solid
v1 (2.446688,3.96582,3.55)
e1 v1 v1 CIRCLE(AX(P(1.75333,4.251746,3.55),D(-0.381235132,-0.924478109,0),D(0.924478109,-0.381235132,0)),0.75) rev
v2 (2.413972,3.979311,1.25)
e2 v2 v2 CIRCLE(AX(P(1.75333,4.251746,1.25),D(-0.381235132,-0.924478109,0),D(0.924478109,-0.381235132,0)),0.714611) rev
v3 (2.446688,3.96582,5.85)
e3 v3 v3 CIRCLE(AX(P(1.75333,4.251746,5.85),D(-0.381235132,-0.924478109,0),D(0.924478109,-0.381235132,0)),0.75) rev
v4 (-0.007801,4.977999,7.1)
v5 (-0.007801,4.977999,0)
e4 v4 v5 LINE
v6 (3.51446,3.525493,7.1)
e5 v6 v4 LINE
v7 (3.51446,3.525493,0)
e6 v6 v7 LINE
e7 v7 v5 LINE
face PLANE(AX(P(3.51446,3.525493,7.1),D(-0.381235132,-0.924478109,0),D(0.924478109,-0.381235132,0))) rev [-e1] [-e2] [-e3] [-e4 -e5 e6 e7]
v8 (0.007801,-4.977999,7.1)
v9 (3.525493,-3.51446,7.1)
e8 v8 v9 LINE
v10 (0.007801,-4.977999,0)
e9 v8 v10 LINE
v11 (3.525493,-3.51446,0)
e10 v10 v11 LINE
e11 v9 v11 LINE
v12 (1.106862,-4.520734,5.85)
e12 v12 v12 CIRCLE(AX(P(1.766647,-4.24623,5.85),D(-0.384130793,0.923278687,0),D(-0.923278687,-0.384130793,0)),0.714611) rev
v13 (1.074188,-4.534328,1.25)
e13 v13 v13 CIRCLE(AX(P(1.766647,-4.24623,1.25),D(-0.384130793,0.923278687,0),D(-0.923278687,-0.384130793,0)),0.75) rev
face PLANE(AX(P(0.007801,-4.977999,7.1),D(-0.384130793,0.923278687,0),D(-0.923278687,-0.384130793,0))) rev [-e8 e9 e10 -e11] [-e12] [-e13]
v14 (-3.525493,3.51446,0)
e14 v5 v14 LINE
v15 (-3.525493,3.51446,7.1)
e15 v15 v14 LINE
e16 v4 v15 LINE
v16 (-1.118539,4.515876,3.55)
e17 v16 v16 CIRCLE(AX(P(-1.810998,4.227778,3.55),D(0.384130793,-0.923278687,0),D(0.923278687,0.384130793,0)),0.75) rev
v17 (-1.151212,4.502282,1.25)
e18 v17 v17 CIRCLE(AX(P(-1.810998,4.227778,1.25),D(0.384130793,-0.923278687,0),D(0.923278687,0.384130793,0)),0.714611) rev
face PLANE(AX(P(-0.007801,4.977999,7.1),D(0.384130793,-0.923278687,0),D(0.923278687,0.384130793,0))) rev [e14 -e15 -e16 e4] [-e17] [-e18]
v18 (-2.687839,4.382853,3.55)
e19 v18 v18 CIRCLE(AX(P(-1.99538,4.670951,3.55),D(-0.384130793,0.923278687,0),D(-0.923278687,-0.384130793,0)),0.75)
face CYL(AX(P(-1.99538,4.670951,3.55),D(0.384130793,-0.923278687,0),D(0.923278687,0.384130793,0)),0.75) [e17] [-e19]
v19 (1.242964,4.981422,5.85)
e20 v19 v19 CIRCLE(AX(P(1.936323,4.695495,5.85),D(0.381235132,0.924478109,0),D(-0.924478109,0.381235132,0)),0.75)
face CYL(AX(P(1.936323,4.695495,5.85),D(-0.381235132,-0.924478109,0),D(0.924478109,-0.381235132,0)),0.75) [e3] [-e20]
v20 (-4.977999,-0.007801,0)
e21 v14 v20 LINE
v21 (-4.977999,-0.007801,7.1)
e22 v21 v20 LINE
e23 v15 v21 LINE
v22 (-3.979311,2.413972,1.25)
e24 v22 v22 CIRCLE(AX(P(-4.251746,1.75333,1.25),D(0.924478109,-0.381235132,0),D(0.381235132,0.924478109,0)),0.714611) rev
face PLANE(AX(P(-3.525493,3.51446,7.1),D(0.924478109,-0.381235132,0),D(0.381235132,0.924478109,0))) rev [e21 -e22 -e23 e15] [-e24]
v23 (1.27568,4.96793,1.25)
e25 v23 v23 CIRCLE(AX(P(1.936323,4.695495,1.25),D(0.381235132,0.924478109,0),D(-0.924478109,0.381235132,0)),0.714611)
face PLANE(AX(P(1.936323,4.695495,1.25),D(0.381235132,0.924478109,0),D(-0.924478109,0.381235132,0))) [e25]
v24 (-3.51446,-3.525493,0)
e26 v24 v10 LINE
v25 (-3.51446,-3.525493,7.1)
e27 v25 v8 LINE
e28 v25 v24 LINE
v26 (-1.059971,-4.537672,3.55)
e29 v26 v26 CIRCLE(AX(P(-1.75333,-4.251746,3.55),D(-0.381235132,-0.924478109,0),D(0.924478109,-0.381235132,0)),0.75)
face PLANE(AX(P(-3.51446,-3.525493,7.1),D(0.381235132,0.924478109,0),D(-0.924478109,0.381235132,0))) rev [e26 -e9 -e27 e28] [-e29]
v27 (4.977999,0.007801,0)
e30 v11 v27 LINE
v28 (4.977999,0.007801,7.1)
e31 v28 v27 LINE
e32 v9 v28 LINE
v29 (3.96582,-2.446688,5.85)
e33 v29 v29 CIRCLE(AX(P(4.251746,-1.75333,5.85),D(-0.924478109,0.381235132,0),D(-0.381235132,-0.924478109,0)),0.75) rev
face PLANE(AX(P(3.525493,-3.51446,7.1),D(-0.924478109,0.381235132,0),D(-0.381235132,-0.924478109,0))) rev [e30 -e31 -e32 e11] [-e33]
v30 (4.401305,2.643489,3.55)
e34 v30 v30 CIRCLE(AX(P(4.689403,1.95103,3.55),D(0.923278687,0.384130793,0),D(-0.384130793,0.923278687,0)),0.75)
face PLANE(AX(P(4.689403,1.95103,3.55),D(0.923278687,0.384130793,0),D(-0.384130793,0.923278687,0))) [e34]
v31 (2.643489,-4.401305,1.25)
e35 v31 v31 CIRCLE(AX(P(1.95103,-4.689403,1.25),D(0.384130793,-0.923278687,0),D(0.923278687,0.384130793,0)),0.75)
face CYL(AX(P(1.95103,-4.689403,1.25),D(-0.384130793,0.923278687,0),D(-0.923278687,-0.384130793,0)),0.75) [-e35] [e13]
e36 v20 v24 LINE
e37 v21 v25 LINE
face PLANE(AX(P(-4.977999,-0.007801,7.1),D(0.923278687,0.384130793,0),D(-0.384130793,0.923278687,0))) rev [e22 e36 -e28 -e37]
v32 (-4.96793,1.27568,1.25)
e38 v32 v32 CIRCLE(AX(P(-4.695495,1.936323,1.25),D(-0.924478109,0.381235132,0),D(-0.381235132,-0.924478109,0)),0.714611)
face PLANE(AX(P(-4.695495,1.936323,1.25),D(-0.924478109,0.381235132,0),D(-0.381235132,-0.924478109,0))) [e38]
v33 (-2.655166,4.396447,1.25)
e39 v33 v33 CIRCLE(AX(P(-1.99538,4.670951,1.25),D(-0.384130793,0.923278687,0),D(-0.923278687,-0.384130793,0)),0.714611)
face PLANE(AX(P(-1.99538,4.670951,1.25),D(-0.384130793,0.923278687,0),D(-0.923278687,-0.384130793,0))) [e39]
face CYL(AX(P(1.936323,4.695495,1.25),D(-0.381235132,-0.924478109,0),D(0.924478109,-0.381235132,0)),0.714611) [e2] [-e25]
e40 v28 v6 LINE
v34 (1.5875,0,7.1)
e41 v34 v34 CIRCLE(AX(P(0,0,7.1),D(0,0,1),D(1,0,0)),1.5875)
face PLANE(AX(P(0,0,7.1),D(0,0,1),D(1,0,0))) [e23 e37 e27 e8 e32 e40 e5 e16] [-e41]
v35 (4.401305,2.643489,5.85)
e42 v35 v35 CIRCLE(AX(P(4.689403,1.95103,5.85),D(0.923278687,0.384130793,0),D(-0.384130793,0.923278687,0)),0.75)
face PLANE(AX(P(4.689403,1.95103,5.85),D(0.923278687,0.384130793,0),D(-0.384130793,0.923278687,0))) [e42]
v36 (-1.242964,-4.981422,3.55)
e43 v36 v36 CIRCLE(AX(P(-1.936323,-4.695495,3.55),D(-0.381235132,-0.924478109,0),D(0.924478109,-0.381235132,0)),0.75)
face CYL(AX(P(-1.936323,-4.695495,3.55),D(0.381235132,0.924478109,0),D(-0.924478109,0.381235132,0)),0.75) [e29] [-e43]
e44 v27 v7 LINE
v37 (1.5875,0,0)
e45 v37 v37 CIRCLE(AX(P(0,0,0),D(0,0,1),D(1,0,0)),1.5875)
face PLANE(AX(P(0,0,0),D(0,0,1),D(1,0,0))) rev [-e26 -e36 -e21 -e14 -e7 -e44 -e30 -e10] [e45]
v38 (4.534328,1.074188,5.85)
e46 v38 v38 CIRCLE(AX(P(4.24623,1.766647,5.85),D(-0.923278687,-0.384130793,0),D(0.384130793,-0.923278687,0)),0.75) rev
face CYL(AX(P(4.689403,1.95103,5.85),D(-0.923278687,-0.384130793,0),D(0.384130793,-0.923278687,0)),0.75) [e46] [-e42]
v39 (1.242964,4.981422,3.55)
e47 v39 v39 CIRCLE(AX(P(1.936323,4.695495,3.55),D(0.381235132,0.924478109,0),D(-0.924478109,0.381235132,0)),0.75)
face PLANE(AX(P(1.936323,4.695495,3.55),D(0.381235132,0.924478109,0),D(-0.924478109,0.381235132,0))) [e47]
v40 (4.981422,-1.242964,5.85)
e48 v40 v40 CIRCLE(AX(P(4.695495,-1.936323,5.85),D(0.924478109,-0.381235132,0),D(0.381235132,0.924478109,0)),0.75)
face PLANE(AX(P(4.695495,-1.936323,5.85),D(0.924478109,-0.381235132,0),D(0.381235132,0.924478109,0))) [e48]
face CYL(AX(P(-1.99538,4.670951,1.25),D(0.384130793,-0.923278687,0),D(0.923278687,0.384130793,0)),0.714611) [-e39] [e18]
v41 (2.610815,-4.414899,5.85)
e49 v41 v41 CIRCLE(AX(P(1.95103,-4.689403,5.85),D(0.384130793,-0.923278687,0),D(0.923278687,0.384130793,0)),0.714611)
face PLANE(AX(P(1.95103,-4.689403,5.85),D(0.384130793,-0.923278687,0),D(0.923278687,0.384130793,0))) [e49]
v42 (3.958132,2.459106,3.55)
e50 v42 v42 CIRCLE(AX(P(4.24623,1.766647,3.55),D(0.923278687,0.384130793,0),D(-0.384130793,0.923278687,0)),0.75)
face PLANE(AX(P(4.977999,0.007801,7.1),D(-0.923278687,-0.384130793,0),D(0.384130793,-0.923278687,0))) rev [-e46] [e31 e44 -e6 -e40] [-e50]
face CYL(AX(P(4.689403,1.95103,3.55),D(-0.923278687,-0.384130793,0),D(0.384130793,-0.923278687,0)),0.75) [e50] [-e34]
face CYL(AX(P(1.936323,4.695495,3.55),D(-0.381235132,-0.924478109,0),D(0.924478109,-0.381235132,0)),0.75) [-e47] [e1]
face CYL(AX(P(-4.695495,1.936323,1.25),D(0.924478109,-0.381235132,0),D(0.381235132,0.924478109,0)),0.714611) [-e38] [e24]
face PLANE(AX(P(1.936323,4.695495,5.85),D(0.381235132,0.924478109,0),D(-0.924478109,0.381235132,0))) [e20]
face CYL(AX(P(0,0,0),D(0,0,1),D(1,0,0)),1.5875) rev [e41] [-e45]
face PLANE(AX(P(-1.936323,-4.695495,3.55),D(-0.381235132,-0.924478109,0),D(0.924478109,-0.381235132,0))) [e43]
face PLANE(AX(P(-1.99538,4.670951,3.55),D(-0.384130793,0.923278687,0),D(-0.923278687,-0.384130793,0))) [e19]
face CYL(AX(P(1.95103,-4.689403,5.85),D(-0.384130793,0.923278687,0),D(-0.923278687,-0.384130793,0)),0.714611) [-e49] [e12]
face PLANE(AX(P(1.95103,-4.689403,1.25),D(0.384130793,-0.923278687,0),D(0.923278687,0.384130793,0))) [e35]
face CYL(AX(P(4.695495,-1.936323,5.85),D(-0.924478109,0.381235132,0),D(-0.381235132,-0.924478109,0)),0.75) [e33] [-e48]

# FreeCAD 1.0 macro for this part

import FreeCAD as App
import Part
import Sketcher
Q = App.Units.Quantity


def add_polygon(sketch, points):
    """Adds a closed chain of lines whose ends are joined by coincident constraints."""
    first, n = sketch.GeometryCount, len(points)
    for a, b in zip(points, points[1:] + points[:1]):
        sketch.addGeometry(Part.LineSegment(App.Vector(*a, 0), App.Vector(*b, 0)), False)
    for i in range(n):
        sketch.addConstraint(Sketcher.Constraint("Coincident", first + i, 2, first + (i + 1) % n, 1))

doc = App.newDocument("Part")
params = doc.addObject("Spreadsheet::Sheet", "Params")
for row, (alias, value) in enumerate([
    ("sketch1_length", "3.81 mm"),
    ("pad1_length", "7.1 mm"),
    ("sketch2_diameter", "1.5 mm"),
    ("pad2_length", "0.48 mm"),
    ("sketch3_diameter", "1.5 mm"),
    ("pad3_length", "0.48 mm"),
    ("sketch4_diameter", "1.5 mm"),
    ("pad4_length", "0.48 mm"),
    ("sketch5_diameter", "1.5 mm"),
    ("pad5_length", "0.48 mm"),
    ("sketch6_diameter", "1.5 mm"),
    ("pad6_length", "0.48 mm"),
    ("pad7_length", "0.48 mm"),
    ("sketch8_diameter", "1.5 mm"),
    ("pad8_length", "0.48 mm"),
], start=1):
    params.set(f"A{row}", alias)
    params.set(f"B{row}", "=" + value)
    params.setAlias(f"B{row}", alias)

body = doc.addObject("PartDesign::Body", "Body")

# Sketch on XY plane
sketch1 = body.newObject("Sketcher::SketchObject", "Sketch")
sketch1.AttachmentSupport = (doc.getObject("XY_Plane"), [""])
sketch1.MapMode = "FlatFace"
add_polygon(sketch1, [(0, 5), (-3.5, 3.5), (-5, 0), (-3.5, -3.5), (0, -5), (3.5, -3.5), (5, 0), (3.5, 3.5)])  # lines 0-7
sketch1.addConstraint(Sketcher.Constraint("Symmetric", 0, 2, 4, 2, -1, 1))
sketch1.addConstraint(Sketcher.Constraint("Symmetric", 1, 2, 5, 2, -1, 1))
sketch1.addConstraint(Sketcher.Constraint("Symmetric", 2, 2, 6, 2, -1, 1))
sketch1.addConstraint(Sketcher.Constraint("Symmetric", 3, 2, 7, 2, -1, 1))
sketch1.addConstraint(Sketcher.Constraint("Perpendicular", 0, 2))
sketch1.addConstraint(Sketcher.Constraint("Perpendicular", 1, 3))
sketch1.addConstraint(Sketcher.Constraint("Equal", 0, 1))
sketch1.addConstraint(Sketcher.Constraint("Equal", 1, 2))
sketch1.addConstraint(Sketcher.Constraint("Equal", 2, 3))
sketch1.addConstraint(Sketcher.Constraint("Distance", 0, Q("3.81 mm")))
sketch1.addConstraint(Sketcher.Constraint("DistanceX", 1, 2, -1, 1, Q("4.977999 mm")))
sketch1.addConstraint(Sketcher.Constraint("DistanceY", 1, 2, -1, 1, Q("0.007801 mm")))
sketch1.setExpression("Constraints[17]", "Params.sketch1_length")
pad1 = body.newObject("PartDesign::Pad", "Pad")
pad1.Profile = sketch1
pad1.setExpression("Length", "Params.pad1_length")

# Sketch on an angled plane
sketch2 = body.newObject("Sketcher::SketchObject", "Sketch001")
sketch2.Placement = App.Placement(App.Vector(1.75333, 4.251746, 0), App.Rotation(App.Vector(0.924478109, -0.381235132, 0), App.Vector(0, 0, -1), App.Vector(0.381235132, 0.924478109, 0), "ZXY"))
sketch2.addGeometry(Part.Circle(App.Vector(0, -1.2, 0), App.Vector(0, 0, 1), 0.7), False)
sketch2.addGeometry(Part.Circle(App.Vector(0, -3.5, 0), App.Vector(0, 0, 1), 0.8), False)
sketch2.addGeometry(Part.Circle(App.Vector(0, -5.8, 0), App.Vector(0, 0, 1), 0.8), False)
sketch2.addConstraint(Sketcher.Constraint("Equal", 1, 2))
sketch2.addConstraint(Sketcher.Constraint("PointOnObject", 0, 3, -2))
sketch2.addConstraint(Sketcher.Constraint("PointOnObject", 1, 3, -2))
sketch2.addConstraint(Sketcher.Constraint("PointOnObject", 2, 3, -2))
sketch2.addConstraint(Sketcher.Constraint("Diameter", 1, Q("1.5 mm")))
sketch2.addConstraint(Sketcher.Constraint("DistanceY", 1, 3, 0, 3, Q("2.3 mm")))
sketch2.addConstraint(Sketcher.Constraint("DistanceY", 2, 3, 1, 3, Q("2.3 mm")))
sketch2.addConstraint(Sketcher.Constraint("DistanceY", 0, 3, -1, 1, Q("1.25 mm")))
sketch2.addConstraint(Sketcher.Constraint("Diameter", 0, Q("1.429223 mm")))
sketch2.setExpression("Constraints[4]", "Params.sketch2_diameter")
pad2 = body.newObject("PartDesign::Pad", "Pad001")
pad2.Profile = sketch2
pad2.setExpression("Length", "Params.pad2_length")

# Sketch on an angled plane
sketch3 = body.newObject("Sketcher::SketchObject", "Sketch002")
sketch3.Placement = App.Placement(App.Vector(4.24623, 1.766647, 0), App.Rotation(App.Vector(0, 0, -1), App.Vector(-0.384130793, 0.923278687, 0), App.Vector(0.923278687, 0.384130793, 0), "ZXY"))
sketch3.addGeometry(Part.Circle(App.Vector(-3.5, 0, 0), App.Vector(0, 0, 1), 0.8), False)
sketch3.addGeometry(Part.Circle(App.Vector(-5.8, 0, 0), App.Vector(0, 0, 1), 0.8), False)
sketch3.addConstraint(Sketcher.Constraint("Equal", 0, 1))
sketch3.addConstraint(Sketcher.Constraint("PointOnObject", 0, 3, -1))
sketch3.addConstraint(Sketcher.Constraint("PointOnObject", 1, 3, -1))
sketch3.addConstraint(Sketcher.Constraint("Diameter", 0, Q("1.5 mm")))
sketch3.addConstraint(Sketcher.Constraint("DistanceX", 1, 3, 0, 3, Q("2.3 mm")))
sketch3.addConstraint(Sketcher.Constraint("DistanceX", 0, 3, -1, 1, Q("3.55 mm")))
sketch3.setExpression("Constraints[3]", "Params.sketch3_diameter")
pad3 = body.newObject("PartDesign::Pad", "Pad002")
pad3.Profile = sketch3
pad3.setExpression("Length", "Params.pad3_length")

# Sketch on an angled plane
sketch4 = body.newObject("Sketcher::SketchObject", "Sketch003")
sketch4.Placement = App.Placement(App.Vector(4.251746, -1.75333, 0), App.Rotation(App.Vector(0, 0, -1), App.Vector(0.381235132, 0.924478109, 0), App.Vector(0.924478109, -0.381235132, 0), "ZXY"))
sketch4.addGeometry(Part.Circle(App.Vector(-5.8, 0, 0), App.Vector(0, 0, 1), 0.8), False)
sketch4.addConstraint(Sketcher.Constraint("PointOnObject", 0, 3, -1))
sketch4.addConstraint(Sketcher.Constraint("Diameter", 0, Q("1.5 mm")))
sketch4.addConstraint(Sketcher.Constraint("DistanceX", 0, 3, -1, 1, Q("5.85 mm")))
sketch4.setExpression("Constraints[1]", "Params.sketch4_diameter")
pad4 = body.newObject("PartDesign::Pad", "Pad003")
pad4.Profile = sketch4
pad4.setExpression("Length", "Params.pad4_length")

# Sketch on an angled plane
sketch5 = body.newObject("Sketcher::SketchObject", "Sketch004")
sketch5.Placement = App.Placement(App.Vector(1.766647, -4.24623, 0), App.Rotation(App.Vector(0.923278687, 0.384130793, 0), App.Vector(0, 0, 1), App.Vector(0.384130793, -0.923278687, 0), "ZXY"))
sketch5.addGeometry(Part.Circle(App.Vector(0, 5.8, 0), App.Vector(0, 0, 1), 0.7), False)
sketch5.addGeometry(Part.Circle(App.Vector(0, 1.2, 0), App.Vector(0, 0, 1), 0.8), False)
sketch5.addConstraint(Sketcher.Constraint("PointOnObject", 0, 3, -2))
sketch5.addConstraint(Sketcher.Constraint("PointOnObject", 1, 3, -2))
sketch5.addConstraint(Sketcher.Constraint("Diameter", 1, Q("1.5 mm")))
sketch5.addConstraint(Sketcher.Constraint("DistanceY", 1, 3, 0, 3, Q("4.6 mm")))
sketch5.addConstraint(Sketcher.Constraint("DistanceY", -1, 1, 0, 3, Q("5.85 mm")))
sketch5.addConstraint(Sketcher.Constraint("Diameter", 0, Q("1.429223 mm")))
sketch5.setExpression("Constraints[2]", "Params.sketch5_diameter")
pad5 = body.newObject("PartDesign::Pad", "Pad004")
pad5.Profile = sketch5
pad5.setExpression("Length", "Params.pad5_length")

# Sketch on an angled plane
sketch6 = body.newObject("Sketcher::SketchObject", "Sketch005")
sketch6.Placement = App.Placement(App.Vector(-1.766647, 4.24623, 0), App.Rotation(App.Vector(0.923278687, 0.384130793, 0), App.Vector(0, 0, -1), App.Vector(-0.384130793, 0.923278687, 0), "ZXY"))
sketch6.addGeometry(Part.Circle(App.Vector(0, -1.2, 0), App.Vector(0, 0, 1), 0.7), False)
sketch6.addGeometry(Part.Circle(App.Vector(0, -3.5, 0), App.Vector(0, 0, 1), 0.8), False)
sketch6.addConstraint(Sketcher.Constraint("Vertical", 0, 3, 1, 3))
sketch6.addConstraint(Sketcher.Constraint("Diameter", 1, Q("1.5 mm")))
sketch6.addConstraint(Sketcher.Constraint("DistanceY", 1, 3, 0, 3, Q("2.3 mm")))
sketch6.addConstraint(Sketcher.Constraint("DistanceY", 0, 3, -1, 1, Q("1.25 mm")))
sketch6.addConstraint(Sketcher.Constraint("Diameter", 0, Q("1.429223 mm")))
sketch6.addConstraint(Sketcher.Constraint("DistanceX", 0, 3, -1, 1, Q("0.048036 mm")))
sketch6.setExpression("Constraints[1]", "Params.sketch6_diameter")
pad6 = body.newObject("PartDesign::Pad", "Pad005")
pad6.Profile = sketch6
pad6.setExpression("Length", "Params.pad6_length")

# Sketch on an angled plane
sketch7 = body.newObject("Sketcher::SketchObject", "Sketch006")
sketch7.Placement = App.Placement(App.Vector(-4.251746, 1.75333, 0), App.Rotation(App.Vector(0, 0, 1), App.Vector(0.381235132, 0.924478109, 0), App.Vector(-0.924478109, 0.381235132, 0), "ZXY"))
sketch7.addGeometry(Part.Circle(App.Vector(1.2, 0, 0), App.Vector(0, 0, 1), 0.7), False)
sketch7.addConstraint(Sketcher.Constraint("PointOnObject", 0, 3, -1))
sketch7.addConstraint(Sketcher.Constraint("DistanceX", -1, 1, 0, 3, Q("1.25 mm")))
sketch7.addConstraint(Sketcher.Constraint("Diameter", 0, Q("1.429223 mm")))
pad7 = body.newObject("PartDesign::Pad", "Pad006")
pad7.Profile = sketch7
pad7.setExpression("Length", "Params.pad7_length")

# Sketch on an angled plane
sketch8 = body.newObject("Sketcher::SketchObject", "Sketch007")
sketch8.Placement = App.Placement(App.Vector(-1.75333, -4.251746, 0), App.Rotation(App.Vector(0.924478109, -0.381235132, 0), App.Vector(0, 0, 1), App.Vector(-0.381235132, -0.924478109, 0), "ZXY"))
sketch8.addGeometry(Part.Circle(App.Vector(0, 3.5, 0), App.Vector(0, 0, 1), 0.8), False)
sketch8.addConstraint(Sketcher.Constraint("PointOnObject", 0, 3, -2))
sketch8.addConstraint(Sketcher.Constraint("Diameter", 0, Q("1.5 mm")))
sketch8.addConstraint(Sketcher.Constraint("DistanceY", -1, 1, 0, 3, Q("3.55 mm")))
sketch8.setExpression("Constraints[1]", "Params.sketch8_diameter")
pad8 = body.newObject("PartDesign::Pad", "Pad007")
pad8.Profile = sketch8
pad8.setExpression("Length", "Params.pad8_length")

# Sketch on XY plane
sketch9 = body.newObject("Sketcher::SketchObject", "Sketch008")
sketch9.AttachmentSupport = (doc.getObject("XY_Plane"), [""])
sketch9.MapMode = "FlatFace"
sketch9.AttachmentOffset = App.Placement(App.Vector(0, 0, 7.1), App.Rotation())
sketch9.addGeometry(Part.Circle(App.Vector(0, 0, 0), App.Vector(0, 0, 1), 1.6), False)
sketch9.addConstraint(Sketcher.Constraint("Coincident", 0, 3, -1, 1))
sketch9.addConstraint(Sketcher.Constraint("Diameter", 0, Q("3.175 mm")))
pocket1 = body.newObject("PartDesign::Pocket", "Pocket")
pocket1.Profile = sketch9
pocket1.Type = "ThroughAll"

doc.recompute()
